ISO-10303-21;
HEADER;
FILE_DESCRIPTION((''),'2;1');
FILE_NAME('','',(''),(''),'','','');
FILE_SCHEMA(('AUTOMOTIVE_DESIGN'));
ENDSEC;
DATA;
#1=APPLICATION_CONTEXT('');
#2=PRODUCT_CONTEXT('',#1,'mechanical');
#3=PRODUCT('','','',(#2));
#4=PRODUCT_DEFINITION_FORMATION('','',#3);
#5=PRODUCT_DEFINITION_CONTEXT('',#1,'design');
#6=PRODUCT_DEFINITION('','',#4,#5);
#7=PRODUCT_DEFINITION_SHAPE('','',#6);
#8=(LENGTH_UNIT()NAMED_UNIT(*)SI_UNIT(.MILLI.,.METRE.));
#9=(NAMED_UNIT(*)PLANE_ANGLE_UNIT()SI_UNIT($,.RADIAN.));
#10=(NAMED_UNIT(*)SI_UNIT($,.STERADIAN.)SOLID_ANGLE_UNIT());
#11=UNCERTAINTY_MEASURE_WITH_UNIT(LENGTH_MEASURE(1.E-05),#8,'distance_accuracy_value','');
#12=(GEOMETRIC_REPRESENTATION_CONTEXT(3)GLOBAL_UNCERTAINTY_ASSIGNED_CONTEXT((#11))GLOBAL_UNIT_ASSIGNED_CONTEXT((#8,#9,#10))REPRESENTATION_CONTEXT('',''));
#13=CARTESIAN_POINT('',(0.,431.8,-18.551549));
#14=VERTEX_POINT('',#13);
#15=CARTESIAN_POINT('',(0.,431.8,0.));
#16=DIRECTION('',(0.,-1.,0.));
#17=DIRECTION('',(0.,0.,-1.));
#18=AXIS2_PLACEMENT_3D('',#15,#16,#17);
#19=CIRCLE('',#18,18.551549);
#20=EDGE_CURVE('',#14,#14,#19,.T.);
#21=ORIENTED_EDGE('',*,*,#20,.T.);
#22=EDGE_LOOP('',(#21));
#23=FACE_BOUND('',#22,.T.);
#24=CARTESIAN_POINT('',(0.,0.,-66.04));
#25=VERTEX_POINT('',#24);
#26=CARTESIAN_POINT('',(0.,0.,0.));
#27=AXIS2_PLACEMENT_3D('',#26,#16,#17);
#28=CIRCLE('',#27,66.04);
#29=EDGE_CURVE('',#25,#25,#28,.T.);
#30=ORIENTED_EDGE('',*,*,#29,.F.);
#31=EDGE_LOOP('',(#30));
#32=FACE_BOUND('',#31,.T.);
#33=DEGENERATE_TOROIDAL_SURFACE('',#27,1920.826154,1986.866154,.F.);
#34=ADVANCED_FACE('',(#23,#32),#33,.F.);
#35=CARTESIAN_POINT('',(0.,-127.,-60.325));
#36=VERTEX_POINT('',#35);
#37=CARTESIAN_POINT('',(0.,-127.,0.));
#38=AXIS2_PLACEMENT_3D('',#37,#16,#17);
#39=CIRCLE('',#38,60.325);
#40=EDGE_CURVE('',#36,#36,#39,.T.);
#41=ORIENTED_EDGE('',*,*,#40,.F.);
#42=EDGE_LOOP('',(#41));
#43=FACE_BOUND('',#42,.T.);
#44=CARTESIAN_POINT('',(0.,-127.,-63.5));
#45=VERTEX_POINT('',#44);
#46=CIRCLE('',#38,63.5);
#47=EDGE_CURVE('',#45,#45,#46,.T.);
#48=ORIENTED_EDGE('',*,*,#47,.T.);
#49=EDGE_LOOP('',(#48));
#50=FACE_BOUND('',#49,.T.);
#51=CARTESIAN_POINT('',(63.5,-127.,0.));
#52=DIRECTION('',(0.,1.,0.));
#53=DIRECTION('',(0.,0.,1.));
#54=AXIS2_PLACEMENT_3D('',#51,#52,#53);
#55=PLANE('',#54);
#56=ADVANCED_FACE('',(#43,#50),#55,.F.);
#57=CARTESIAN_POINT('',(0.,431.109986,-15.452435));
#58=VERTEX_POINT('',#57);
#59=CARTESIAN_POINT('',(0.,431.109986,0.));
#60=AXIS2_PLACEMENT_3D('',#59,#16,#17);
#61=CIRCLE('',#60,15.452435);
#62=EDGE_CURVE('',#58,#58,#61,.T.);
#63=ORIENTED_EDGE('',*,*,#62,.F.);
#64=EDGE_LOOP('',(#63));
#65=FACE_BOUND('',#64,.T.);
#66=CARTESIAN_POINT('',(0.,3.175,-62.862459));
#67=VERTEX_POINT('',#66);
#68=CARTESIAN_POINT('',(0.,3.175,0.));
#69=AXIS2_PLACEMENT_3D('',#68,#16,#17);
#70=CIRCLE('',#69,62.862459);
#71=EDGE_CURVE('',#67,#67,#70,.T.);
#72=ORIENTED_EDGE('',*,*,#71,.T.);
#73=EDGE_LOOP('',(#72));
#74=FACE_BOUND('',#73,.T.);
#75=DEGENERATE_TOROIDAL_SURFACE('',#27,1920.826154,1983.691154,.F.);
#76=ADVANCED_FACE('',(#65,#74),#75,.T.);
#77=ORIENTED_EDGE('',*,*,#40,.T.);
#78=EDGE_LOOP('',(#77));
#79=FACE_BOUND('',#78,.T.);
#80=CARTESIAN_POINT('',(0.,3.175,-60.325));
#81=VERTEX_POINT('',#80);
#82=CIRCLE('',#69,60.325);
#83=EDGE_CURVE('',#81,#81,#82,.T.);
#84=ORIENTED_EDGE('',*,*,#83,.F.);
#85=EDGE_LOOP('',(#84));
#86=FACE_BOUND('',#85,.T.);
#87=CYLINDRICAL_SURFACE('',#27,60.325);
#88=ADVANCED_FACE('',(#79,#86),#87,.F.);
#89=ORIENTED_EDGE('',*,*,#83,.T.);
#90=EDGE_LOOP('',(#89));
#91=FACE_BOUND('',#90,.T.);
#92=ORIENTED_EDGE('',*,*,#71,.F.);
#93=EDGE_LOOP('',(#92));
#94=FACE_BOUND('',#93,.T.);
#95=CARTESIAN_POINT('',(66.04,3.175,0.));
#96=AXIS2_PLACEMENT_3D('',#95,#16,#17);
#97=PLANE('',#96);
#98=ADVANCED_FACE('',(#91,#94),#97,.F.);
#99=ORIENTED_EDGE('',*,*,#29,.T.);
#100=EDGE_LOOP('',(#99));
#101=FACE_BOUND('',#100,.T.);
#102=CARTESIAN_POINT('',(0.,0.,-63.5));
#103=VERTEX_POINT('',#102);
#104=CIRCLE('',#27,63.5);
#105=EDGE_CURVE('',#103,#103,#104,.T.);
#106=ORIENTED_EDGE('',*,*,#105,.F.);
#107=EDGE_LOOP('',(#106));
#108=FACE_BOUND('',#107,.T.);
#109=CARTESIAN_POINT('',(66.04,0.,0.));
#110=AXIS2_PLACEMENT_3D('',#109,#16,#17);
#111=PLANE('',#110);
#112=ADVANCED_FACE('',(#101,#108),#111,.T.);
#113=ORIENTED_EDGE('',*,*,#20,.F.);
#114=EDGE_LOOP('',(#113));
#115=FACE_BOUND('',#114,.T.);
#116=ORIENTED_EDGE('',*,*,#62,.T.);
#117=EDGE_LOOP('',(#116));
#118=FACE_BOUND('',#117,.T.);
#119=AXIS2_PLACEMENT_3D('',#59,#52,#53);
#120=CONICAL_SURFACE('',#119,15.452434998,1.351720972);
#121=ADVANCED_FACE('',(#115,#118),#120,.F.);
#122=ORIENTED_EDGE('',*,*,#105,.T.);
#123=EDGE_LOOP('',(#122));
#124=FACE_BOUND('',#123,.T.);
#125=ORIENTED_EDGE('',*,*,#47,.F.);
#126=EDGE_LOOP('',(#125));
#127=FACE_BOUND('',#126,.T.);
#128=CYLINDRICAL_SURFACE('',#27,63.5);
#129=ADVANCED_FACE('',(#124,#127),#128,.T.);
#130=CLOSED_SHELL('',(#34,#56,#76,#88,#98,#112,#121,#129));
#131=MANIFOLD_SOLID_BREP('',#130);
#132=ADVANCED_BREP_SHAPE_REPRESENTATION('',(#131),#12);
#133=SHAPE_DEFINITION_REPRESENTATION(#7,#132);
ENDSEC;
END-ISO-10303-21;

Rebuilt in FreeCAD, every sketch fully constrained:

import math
import FreeCAD as App
import Part
import Sketcher
from FreeCAD import Vector
Q = App.Units.Quantity

doc = App.newDocument("Part")
body = doc.addObject("PartDesign::Body", "Body")

# Sketch on XY plane
sketch1 = doc.addObject("Sketcher::SketchObject", "Sketch")
body.addObject(sketch1)
sketch1.AttachmentSupport = (doc.XY_Plane, [""])
sketch1.MapMode = "FlatFace"
sketch1.addGeometry([
    Part.ArcOfCircle(Part.Circle(Vector(-1920.826154, 0, 0), Vector(0, 0, 1), 1986.866154), math.radians(0), math.radians(12.552093)),  # 0
    Part.LineSegment(Vector(18.551549, 431.8, 0), Vector(15.452435, 431.109986, 0)),  # 1
    Part.ArcOfCircle(Part.Circle(Vector(-1920.826154, 0, 0), Vector(0, 0, 1), 1983.691154), math.radians(0.091705), math.radians(12.552093)),  # 2
    Part.LineSegment(Vector(62.862459, 3.175, 0), Vector(60.325, 3.175, 0)),  # 3
    Part.LineSegment(Vector(60.325, 3.175, 0), Vector(60.325, -127, 0)),  # 4
    Part.LineSegment(Vector(60.325, -127, 0), Vector(63.5, -127, 0)),  # 5
    Part.LineSegment(Vector(63.5, -127, 0), Vector(63.5, 0, 0)),  # 6
    Part.LineSegment(Vector(63.5, 0, 0), Vector(66.04, 0, 0)),  # 7
], False)
sketch1.addConstraint([
    Sketcher.Constraint("Coincident", 0, 2, 1, 1),
    Sketcher.Constraint("Coincident", 1, 2, 2, 2),
    Sketcher.Constraint("Coincident", 2, 1, 3, 1),
    Sketcher.Constraint("Coincident", 3, 2, 4, 1),
    Sketcher.Constraint("Coincident", 4, 2, 5, 1),
    Sketcher.Constraint("Coincident", 5, 2, 6, 1),
    Sketcher.Constraint("Coincident", 6, 2, 7, 1),
    Sketcher.Constraint("Coincident", 7, 2, 0, 1),
    Sketcher.Constraint("Horizontal", 3),
    Sketcher.Constraint("Vertical", 4),
    Sketcher.Constraint("Horizontal", 5),
    Sketcher.Constraint("Vertical", 6),
    Sketcher.Constraint("Horizontal", 7),
    Sketcher.Constraint("Coincident", 2, 3, 0, 3),
    Sketcher.Constraint("PointOnObject", 0, 3, -1),
    Sketcher.Constraint("PointOnObject", 6, 2, -1),
    Sketcher.Constraint("DistanceY", 6, 1, 6, 2, Q("5 in")),
    Sketcher.Constraint("DistanceX", 7, 1, 7, 2, Q("0.1 in")),
    Sketcher.Constraint("DistanceX", -1, 1, 5, 2, Q("2.5 in")),
    Sketcher.Constraint("DistanceX", 5, 1, 5, 2, Q("0.125 in")),
    Sketcher.Constraint("DistanceY", 4, 2, 4, 1, Q("5.125 in")),
    Sketcher.Constraint("Distance", 1, Q("0.125 in")),
    Sketcher.Constraint("Radius", 0, Q("1986.866154 mm")),
    Sketcher.Constraint("DistanceX", 2, 3, 1, 2, Q("1936.278589 mm")),
    Sketcher.Constraint("Angle", 1, Q("-167.447907 deg")),
])
revolution = doc.addObject("PartDesign::Revolution", "Revolution")
body.addObject(revolution)
revolution.Profile = sketch1
revolution.ReferenceAxis = (sketch1, ["V_Axis"])
revolution.Angle = 360

doc.recompute()
